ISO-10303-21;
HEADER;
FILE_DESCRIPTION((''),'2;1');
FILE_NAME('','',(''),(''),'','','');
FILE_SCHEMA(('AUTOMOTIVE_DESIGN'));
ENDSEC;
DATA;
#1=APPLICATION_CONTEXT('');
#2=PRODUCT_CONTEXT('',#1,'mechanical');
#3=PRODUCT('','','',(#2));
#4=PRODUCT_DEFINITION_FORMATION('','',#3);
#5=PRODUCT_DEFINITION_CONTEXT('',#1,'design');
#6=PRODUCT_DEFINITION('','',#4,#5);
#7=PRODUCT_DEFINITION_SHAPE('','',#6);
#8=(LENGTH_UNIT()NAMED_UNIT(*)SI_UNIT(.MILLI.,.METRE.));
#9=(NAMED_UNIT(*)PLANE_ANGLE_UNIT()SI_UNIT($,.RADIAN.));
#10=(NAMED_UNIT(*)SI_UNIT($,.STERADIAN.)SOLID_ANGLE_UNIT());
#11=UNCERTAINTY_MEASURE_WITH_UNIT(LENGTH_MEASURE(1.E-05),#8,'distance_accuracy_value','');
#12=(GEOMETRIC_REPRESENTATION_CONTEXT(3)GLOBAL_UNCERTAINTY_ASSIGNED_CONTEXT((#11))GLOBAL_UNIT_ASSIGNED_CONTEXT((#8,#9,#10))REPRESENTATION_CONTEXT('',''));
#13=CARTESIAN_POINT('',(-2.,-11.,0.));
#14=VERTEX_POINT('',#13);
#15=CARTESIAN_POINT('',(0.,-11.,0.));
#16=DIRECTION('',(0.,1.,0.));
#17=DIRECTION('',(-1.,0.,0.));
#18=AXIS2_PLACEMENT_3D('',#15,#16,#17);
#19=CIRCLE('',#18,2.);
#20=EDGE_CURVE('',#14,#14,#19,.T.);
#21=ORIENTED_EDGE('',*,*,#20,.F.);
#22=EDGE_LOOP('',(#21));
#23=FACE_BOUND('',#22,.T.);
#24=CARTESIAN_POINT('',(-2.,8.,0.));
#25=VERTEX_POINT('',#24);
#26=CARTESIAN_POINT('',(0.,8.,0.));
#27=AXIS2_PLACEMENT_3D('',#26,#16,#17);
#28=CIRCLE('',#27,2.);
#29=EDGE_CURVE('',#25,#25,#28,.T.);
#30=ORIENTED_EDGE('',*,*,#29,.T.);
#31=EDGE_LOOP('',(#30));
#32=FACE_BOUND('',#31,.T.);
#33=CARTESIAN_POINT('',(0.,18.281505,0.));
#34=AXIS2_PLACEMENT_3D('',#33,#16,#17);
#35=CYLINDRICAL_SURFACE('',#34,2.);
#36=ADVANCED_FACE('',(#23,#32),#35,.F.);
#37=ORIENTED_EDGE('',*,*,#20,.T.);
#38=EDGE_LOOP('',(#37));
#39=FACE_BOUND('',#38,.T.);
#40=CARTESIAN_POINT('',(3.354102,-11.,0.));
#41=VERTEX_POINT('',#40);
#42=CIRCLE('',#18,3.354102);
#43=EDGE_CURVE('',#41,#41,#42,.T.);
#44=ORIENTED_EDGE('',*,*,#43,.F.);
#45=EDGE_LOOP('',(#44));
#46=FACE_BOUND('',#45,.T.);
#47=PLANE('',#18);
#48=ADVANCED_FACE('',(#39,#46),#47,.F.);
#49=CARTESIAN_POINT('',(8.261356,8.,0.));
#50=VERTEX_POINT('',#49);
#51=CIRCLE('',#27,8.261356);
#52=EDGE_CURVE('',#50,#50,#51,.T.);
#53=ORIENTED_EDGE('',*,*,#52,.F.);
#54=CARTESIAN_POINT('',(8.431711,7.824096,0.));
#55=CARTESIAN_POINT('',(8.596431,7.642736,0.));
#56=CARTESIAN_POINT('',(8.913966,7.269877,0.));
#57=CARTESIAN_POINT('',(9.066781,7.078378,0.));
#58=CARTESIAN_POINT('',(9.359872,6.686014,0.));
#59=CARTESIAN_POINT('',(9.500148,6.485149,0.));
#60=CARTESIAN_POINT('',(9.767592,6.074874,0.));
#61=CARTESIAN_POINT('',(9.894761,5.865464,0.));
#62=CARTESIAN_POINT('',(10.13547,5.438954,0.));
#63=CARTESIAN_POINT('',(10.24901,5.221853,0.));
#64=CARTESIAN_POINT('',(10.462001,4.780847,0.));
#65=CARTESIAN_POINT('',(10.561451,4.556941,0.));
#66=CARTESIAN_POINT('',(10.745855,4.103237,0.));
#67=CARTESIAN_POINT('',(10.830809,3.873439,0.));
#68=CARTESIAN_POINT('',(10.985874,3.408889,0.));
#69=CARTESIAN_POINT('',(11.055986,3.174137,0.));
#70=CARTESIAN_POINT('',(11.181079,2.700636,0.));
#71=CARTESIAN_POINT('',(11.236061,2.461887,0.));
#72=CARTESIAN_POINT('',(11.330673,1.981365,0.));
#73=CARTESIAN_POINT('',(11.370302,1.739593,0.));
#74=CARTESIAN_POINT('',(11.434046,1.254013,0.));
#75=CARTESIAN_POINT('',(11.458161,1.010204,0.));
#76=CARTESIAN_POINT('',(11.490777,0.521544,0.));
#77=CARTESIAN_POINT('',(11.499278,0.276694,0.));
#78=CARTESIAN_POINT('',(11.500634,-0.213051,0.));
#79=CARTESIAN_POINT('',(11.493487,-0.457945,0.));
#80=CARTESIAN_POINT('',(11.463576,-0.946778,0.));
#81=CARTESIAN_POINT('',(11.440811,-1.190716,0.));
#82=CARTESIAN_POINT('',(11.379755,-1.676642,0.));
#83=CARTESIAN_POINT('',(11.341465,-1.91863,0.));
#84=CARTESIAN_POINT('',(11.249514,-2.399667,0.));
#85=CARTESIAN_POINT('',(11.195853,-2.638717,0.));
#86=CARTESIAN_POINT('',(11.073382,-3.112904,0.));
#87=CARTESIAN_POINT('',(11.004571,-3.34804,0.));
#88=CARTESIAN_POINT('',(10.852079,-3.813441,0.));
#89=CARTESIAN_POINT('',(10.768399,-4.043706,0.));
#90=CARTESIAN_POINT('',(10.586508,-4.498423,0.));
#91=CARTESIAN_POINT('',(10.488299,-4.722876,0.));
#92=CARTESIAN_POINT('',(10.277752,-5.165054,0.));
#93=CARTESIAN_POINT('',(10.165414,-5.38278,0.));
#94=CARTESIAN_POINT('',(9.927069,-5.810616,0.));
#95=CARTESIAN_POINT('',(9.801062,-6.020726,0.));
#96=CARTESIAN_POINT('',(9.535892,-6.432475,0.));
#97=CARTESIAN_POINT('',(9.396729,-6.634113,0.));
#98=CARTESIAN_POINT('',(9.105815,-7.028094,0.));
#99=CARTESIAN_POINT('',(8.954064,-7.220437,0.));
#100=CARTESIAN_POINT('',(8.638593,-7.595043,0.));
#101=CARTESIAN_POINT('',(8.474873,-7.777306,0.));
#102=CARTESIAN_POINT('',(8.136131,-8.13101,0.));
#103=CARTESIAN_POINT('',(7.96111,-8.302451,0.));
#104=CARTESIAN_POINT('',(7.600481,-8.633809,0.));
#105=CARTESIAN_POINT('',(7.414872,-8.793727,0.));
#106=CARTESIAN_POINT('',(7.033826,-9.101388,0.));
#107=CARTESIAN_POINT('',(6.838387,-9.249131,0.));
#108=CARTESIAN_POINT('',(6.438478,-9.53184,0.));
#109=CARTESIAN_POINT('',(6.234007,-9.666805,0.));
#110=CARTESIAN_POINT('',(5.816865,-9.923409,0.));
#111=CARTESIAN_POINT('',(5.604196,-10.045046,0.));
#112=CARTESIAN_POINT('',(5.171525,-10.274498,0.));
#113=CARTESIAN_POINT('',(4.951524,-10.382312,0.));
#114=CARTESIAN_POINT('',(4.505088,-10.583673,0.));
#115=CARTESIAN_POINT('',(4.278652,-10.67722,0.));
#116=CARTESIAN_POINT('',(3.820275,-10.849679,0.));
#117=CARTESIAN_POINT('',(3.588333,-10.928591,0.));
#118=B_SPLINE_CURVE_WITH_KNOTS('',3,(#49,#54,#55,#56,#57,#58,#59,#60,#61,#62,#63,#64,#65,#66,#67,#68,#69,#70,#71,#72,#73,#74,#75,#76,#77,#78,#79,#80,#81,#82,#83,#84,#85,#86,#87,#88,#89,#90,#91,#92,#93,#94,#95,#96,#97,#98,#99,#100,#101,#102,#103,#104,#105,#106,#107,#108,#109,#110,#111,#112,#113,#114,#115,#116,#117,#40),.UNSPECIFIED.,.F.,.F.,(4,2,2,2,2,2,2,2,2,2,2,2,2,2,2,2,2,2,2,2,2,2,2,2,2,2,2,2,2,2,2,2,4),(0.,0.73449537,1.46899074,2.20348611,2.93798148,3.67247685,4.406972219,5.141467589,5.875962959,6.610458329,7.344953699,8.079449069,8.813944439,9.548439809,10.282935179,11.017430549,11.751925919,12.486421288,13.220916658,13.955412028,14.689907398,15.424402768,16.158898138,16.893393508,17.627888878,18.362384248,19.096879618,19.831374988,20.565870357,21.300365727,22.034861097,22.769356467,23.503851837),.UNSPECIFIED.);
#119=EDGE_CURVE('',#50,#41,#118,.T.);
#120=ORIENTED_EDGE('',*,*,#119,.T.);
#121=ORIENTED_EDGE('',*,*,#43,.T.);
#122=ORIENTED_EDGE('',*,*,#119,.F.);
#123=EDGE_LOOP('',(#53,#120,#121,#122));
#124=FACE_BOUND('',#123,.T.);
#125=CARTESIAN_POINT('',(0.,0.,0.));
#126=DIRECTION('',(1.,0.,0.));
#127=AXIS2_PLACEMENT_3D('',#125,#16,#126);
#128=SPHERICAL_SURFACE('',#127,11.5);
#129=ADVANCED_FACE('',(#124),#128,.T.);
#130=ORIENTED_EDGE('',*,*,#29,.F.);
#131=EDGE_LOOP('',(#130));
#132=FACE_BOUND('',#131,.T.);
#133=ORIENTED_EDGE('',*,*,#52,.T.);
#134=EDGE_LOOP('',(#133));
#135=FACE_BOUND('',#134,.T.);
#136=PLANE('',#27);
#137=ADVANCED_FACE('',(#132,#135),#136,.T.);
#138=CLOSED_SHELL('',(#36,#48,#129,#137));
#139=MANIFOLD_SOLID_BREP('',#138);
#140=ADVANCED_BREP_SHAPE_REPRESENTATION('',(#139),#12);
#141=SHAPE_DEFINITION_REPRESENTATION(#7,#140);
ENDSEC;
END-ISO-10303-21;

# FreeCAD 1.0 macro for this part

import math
import FreeCAD as App
import Part
import Sketcher
Q = App.Units.Quantity

doc = App.newDocument("Part")
body = doc.addObject("PartDesign::Body", "Body")

sketch1 = doc.addObject("Sketcher::SketchObject", "Sketch")
body.addObject(sketch1)
sketch1.AttachmentSupport = (doc.XY_Plane, [""])
sketch1.MapMode = "FlatFace"
sketch1.addGeometry(Part.LineSegment(App.Vector(2, -11, 0), App.Vector(3.354102, -11, 0)), False)
sketch1.addGeometry(Part.ArcOfCircle(Part.Circle(App.Vector(0, 0, 0), App.Vector(0, 0, 1), 11.5), math.radians(-73.042574), math.radians(44.07921)), False)
sketch1.addGeometry(Part.LineSegment(App.Vector(8.261356, 8, 0), App.Vector(2, 8, 0)), False)
sketch1.addGeometry(Part.LineSegment(App.Vector(2, 8, 0), App.Vector(2, -11, 0)), False)
sketch1.addConstraint(Sketcher.Constraint("Coincident", 0, 2, 1, 1))
sketch1.addConstraint(Sketcher.Constraint("Coincident", 1, 2, 2, 1))
sketch1.addConstraint(Sketcher.Constraint("Coincident", 2, 2, 3, 1))
sketch1.addConstraint(Sketcher.Constraint("Coincident", 3, 2, 0, 1))
sketch1.addConstraint(Sketcher.Constraint("Horizontal", 0))
sketch1.addConstraint(Sketcher.Constraint("Horizontal", 2))
sketch1.addConstraint(Sketcher.Constraint("Vertical", 3))
sketch1.addConstraint(Sketcher.Constraint("Coincident", 1, 3, -1, 1))
sketch1.addConstraint(Sketcher.Constraint("Radius", 1, Q("11.5 mm")))
sketch1.addConstraint(Sketcher.Constraint("DistanceY", 3, 2, 3, 1, Q("19 mm")))
sketch1.addConstraint(Sketcher.Constraint("DistanceY", 0, 2, -1, 1, Q("11 mm")))
sketch1.addConstraint(Sketcher.Constraint("DistanceX", -1, 1, 2, 2, Q("2 mm")))
revolution = doc.addObject("PartDesign::Revolution", "Revolution")
body.addObject(revolution)
revolution.Profile = sketch1
revolution.ReferenceAxis = (sketch1, ["V_Axis"])
revolution.Angle = 360

doc.recompute()
